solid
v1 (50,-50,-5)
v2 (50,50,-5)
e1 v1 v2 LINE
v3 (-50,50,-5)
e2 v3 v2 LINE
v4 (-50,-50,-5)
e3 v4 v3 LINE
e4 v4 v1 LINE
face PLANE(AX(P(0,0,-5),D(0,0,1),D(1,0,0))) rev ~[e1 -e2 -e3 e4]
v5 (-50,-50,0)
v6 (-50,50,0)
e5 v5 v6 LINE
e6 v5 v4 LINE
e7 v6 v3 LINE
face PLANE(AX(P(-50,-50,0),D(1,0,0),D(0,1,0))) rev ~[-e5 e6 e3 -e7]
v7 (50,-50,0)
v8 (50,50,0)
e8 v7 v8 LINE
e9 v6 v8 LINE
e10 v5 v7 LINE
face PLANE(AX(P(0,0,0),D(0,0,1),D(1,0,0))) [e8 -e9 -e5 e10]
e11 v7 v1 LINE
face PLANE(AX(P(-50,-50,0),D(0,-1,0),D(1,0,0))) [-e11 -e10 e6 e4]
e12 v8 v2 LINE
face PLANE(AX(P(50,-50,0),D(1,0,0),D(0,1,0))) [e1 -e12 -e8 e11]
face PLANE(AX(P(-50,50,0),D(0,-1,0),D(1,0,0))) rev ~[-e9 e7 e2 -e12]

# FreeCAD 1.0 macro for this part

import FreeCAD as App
import Part
import Sketcher
from FreeCAD import Vector
Q = App.Units.Quantity


def add_polygon(sketch, points):
    """Adds a closed chain of lines whose ends are joined by coincident constraints."""
    first, n = sketch.GeometryCount, len(points)
    for a, b in zip(points, points[1:] + points[:1]):
        sketch.addGeometry(Part.LineSegment(App.Vector(*a, 0), App.Vector(*b, 0)), False)
    for i in range(n):
        sketch.addConstraint(Sketcher.Constraint("Coincident", first + i, 2, first + (i + 1) % n, 1))

doc = App.newDocument("Part")
body = doc.addObject("PartDesign::Body", "Body")

# Sketch on XY plane
sketch1 = body.newObject("Sketcher::SketchObject", "Sketch")
sketch1.AttachmentSupport = (doc.getObject("XY_Plane"), [""])
sketch1.MapMode = "FlatFace"
add_polygon(sketch1, [(-50, 50), (-50, -50), (50, -50), (50, 50)])  # lines 0-3
sketch1.addConstraint(Sketcher.Constraint("Vertical", 0))
sketch1.addConstraint(Sketcher.Constraint("Horizontal", 1))
sketch1.addConstraint(Sketcher.Constraint("Vertical", 2))
sketch1.addConstraint(Sketcher.Constraint("Horizontal", 3))
sketch1.addConstraint(Sketcher.Constraint("Symmetric", 0, 2, 2, 2, -1, 1))
sketch1.addConstraint(Sketcher.Constraint("Equal", 3, 0))
sketch1.addConstraint(Sketcher.Constraint("DistanceX", 1, 1, 1, 2, Q("100 mm")))
pad1 = body.newObject("PartDesign::Pad", "Pad")
pad1.Profile = sketch1
pad1.Length = 5
pad1.Reversed = True

doc.recompute()
